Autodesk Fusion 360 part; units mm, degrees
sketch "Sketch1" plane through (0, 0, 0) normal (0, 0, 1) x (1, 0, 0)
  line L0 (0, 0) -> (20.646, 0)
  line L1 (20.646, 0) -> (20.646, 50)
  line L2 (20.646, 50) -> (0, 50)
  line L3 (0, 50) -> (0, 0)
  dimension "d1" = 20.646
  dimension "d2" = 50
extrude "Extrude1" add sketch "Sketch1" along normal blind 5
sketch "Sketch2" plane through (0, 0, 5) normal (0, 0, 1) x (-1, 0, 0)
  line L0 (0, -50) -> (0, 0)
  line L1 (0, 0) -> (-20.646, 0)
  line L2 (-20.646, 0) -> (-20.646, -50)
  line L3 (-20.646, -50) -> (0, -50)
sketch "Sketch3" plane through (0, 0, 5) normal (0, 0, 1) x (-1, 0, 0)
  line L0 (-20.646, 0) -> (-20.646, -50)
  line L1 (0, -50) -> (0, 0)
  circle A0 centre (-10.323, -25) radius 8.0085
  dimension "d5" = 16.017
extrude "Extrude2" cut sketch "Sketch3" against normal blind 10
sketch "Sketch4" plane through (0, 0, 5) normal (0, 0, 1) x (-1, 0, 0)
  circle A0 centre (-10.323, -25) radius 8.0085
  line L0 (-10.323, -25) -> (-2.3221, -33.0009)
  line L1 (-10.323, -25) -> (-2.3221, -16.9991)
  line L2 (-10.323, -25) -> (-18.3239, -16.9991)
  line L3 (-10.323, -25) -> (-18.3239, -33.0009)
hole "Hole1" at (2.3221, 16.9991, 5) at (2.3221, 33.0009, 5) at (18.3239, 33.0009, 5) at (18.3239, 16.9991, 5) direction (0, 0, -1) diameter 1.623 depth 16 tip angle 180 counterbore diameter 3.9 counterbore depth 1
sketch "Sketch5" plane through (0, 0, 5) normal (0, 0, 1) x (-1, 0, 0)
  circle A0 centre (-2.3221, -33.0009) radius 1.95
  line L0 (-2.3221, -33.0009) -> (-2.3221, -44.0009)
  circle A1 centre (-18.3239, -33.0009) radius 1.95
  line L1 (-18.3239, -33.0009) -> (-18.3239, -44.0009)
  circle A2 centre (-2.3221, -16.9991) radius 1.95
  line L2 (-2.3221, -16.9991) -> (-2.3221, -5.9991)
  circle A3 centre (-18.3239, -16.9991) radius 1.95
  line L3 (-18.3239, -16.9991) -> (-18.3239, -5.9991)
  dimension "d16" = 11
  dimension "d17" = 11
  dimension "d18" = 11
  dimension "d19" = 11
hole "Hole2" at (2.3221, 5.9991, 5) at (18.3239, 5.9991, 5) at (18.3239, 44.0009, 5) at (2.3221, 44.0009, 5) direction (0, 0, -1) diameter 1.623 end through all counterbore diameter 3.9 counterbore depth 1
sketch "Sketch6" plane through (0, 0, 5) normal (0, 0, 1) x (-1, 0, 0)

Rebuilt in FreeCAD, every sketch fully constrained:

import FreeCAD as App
import Part
import Sketcher


def add_polygon(sketch, points):
    """Adds a closed chain of lines whose ends are joined by coincident constraints."""
    first, n = sketch.GeometryCount, len(points)
    for a, b in zip(points, points[1:] + points[:1]):
        sketch.addGeometry(Part.LineSegment(App.Vector(*a, 0), App.Vector(*b, 0)), False)
    for i in range(n):
        sketch.addConstraint(Sketcher.Constraint("Coincident", first + i, 2, first + (i + 1) % n, 1))

doc = App.newDocument("Part")
body = doc.addObject("PartDesign::Body", "Body")

# Sketch on XY plane
sketch1 = body.newObject("Sketcher::SketchObject", "Sketch")
sketch1.AttachmentSupport = (doc.getObject("XY_Plane"), [""])
sketch1.MapMode = "FlatFace"
add_polygon(sketch1, [(0, 50), (0, 0), (21, 0), (21, 50)])  # lines 0-3
sketch1.addConstraint([
    Sketcher.Constraint("Vertical", 0),
    Sketcher.Constraint("Horizontal", 1),
    Sketcher.Constraint("Vertical", 2),
    Sketcher.Constraint("Horizontal", 3),
    Sketcher.Constraint("Coincident", 0, 2, -1, 1),
    Sketcher.Constraint("DistanceY", 0, 2, 0, 1, 50.0),
    Sketcher.Constraint("DistanceX", 1, 1, 1, 2, 20.646),
])
pad1 = body.newObject("PartDesign::Pad", "Pad")
pad1.Profile = sketch1
pad1.Length = 5

# Sketch on XY plane
sketch2 = body.newObject("Sketcher::SketchObject", "Sketch001")
sketch2.AttachmentSupport = (doc.getObject("XY_Plane"), [""])
sketch2.MapMode = "FlatFace"
sketch2.AttachmentOffset = App.Placement(App.Vector(0, 0, 5), App.Rotation())
sketch2.addGeometry(Part.Circle(App.Vector(10, 25, 0), App.Vector(0, 0, 1), 8), False)
sketch2.addConstraint([
    Sketcher.Constraint("Diameter", 0, 16.017),
    Sketcher.Constraint("DistanceY", -1, 1, 0, 3, 25.0),
    Sketcher.Constraint("DistanceX", -1, 1, 0, 3, 10.323),
])
pocket1 = body.newObject("PartDesign::Pocket", "Pocket")
pocket1.Profile = sketch2
pocket1.Length = 10

# Sketch on XY plane
sketch3 = body.newObject("Sketcher::SketchObject", "Sketch002")
sketch3.AttachmentSupport = (doc.getObject("XY_Plane"), [""])
sketch3.MapMode = "FlatFace"
sketch3.AttachmentOffset = App.Placement(App.Vector(0, 0, 5), App.Rotation())
sketch3.addGeometry([
    Part.Circle(App.Vector(2.3, 17, 0), App.Vector(0, 0, 1), 0.8),
    Part.Circle(App.Vector(2.3, 33, 0), App.Vector(0, 0, 1), 0.8),
    Part.Circle(App.Vector(18.3, 33, 0), App.Vector(0, 0, 1), 0.8),
    Part.Circle(App.Vector(18.3, 17, 0), App.Vector(0, 0, 1), 0.8),
], False)
sketch3.addConstraint([
    Sketcher.Constraint("Equal", 0, 1),
    Sketcher.Constraint("Equal", 1, 2),
    Sketcher.Constraint("Equal", 2, 3),
    Sketcher.Constraint("Horizontal", 1, 3, 2, 3),
    Sketcher.Constraint("Horizontal", 0, 3, 3, 3),
    Sketcher.Constraint("Vertical", 0, 3, 1, 3),
    Sketcher.Constraint("Vertical", 2, 3, 3, 3),
    Sketcher.Constraint("Diameter", 0, 1.623),
    Sketcher.Constraint("DistanceX", -1, 1, 0, 3, 2.322),
    Sketcher.Constraint("DistanceY", -1, 1, 0, 3, 16.999),
    Sketcher.Constraint("DistanceY", -1, 1, 1, 3, 33.001),
    Sketcher.Constraint("DistanceX", -1, 1, 2, 3, 18.324),
])
doc.recompute()
hole = body.newObject("PartDesign::Hole", "Hole")
hole.Profile = sketch3
hole.ThreadType = "None"
hole.Diameter = 1.623
hole.DepthType = "Dimension"
hole.Depth = 16
hole.DrillPoint = "Flat"
hole.HoleCutType = "Counterbore"
hole.HoleCutDiameter = 3.9
hole.HoleCutDepth = 1

# Sketch on XY plane
sketch4 = body.newObject("Sketcher::SketchObject", "Sketch003")
sketch4.AttachmentSupport = (doc.getObject("XY_Plane"), [""])
sketch4.MapMode = "FlatFace"
sketch4.AttachmentOffset = App.Placement(App.Vector(0, 0, 5), App.Rotation())
sketch4.addGeometry([
    Part.Circle(App.Vector(2.3, 6, 0), App.Vector(0, 0, 1), 0.8),
    Part.Circle(App.Vector(18.3, 6, 0), App.Vector(0, 0, 1), 0.8),
    Part.Circle(App.Vector(18.3, 44, 0), App.Vector(0, 0, 1), 0.8),
    Part.Circle(App.Vector(2.3, 44, 0), App.Vector(0, 0, 1), 0.8),
], False)
sketch4.addConstraint([
    Sketcher.Constraint("Equal", 0, 1),
    Sketcher.Constraint("Equal", 1, 2),
    Sketcher.Constraint("Equal", 2, 3),
    Sketcher.Constraint("Horizontal", 0, 3, 1, 3),
    Sketcher.Constraint("Horizontal", 2, 3, 3, 3),
    Sketcher.Constraint("Vertical", 1, 3, 2, 3),
    Sketcher.Constraint("Vertical", 0, 3, 3, 3),
    Sketcher.Constraint("Diameter", 0, 1.623),
    Sketcher.Constraint("DistanceX", -1, 1, 0, 3, 2.322),
    Sketcher.Constraint("DistanceY", -1, 1, 0, 3, 5.999),
    Sketcher.Constraint("DistanceX", -1, 1, 1, 3, 18.324),
    Sketcher.Constraint("DistanceY", -1, 1, 2, 3, 44.001),
])
doc.recompute()
hole2 = body.newObject("PartDesign::Hole", "Hole001")
hole2.Profile = sketch4
hole2.ThreadType = "None"
hole2.Diameter = 1.623
hole2.DepthType = "ThroughAll"
hole2.HoleCutType = "Counterbore"
hole2.HoleCutDiameter = 3.9
hole2.HoleCutDepth = 1

doc.recompute()
